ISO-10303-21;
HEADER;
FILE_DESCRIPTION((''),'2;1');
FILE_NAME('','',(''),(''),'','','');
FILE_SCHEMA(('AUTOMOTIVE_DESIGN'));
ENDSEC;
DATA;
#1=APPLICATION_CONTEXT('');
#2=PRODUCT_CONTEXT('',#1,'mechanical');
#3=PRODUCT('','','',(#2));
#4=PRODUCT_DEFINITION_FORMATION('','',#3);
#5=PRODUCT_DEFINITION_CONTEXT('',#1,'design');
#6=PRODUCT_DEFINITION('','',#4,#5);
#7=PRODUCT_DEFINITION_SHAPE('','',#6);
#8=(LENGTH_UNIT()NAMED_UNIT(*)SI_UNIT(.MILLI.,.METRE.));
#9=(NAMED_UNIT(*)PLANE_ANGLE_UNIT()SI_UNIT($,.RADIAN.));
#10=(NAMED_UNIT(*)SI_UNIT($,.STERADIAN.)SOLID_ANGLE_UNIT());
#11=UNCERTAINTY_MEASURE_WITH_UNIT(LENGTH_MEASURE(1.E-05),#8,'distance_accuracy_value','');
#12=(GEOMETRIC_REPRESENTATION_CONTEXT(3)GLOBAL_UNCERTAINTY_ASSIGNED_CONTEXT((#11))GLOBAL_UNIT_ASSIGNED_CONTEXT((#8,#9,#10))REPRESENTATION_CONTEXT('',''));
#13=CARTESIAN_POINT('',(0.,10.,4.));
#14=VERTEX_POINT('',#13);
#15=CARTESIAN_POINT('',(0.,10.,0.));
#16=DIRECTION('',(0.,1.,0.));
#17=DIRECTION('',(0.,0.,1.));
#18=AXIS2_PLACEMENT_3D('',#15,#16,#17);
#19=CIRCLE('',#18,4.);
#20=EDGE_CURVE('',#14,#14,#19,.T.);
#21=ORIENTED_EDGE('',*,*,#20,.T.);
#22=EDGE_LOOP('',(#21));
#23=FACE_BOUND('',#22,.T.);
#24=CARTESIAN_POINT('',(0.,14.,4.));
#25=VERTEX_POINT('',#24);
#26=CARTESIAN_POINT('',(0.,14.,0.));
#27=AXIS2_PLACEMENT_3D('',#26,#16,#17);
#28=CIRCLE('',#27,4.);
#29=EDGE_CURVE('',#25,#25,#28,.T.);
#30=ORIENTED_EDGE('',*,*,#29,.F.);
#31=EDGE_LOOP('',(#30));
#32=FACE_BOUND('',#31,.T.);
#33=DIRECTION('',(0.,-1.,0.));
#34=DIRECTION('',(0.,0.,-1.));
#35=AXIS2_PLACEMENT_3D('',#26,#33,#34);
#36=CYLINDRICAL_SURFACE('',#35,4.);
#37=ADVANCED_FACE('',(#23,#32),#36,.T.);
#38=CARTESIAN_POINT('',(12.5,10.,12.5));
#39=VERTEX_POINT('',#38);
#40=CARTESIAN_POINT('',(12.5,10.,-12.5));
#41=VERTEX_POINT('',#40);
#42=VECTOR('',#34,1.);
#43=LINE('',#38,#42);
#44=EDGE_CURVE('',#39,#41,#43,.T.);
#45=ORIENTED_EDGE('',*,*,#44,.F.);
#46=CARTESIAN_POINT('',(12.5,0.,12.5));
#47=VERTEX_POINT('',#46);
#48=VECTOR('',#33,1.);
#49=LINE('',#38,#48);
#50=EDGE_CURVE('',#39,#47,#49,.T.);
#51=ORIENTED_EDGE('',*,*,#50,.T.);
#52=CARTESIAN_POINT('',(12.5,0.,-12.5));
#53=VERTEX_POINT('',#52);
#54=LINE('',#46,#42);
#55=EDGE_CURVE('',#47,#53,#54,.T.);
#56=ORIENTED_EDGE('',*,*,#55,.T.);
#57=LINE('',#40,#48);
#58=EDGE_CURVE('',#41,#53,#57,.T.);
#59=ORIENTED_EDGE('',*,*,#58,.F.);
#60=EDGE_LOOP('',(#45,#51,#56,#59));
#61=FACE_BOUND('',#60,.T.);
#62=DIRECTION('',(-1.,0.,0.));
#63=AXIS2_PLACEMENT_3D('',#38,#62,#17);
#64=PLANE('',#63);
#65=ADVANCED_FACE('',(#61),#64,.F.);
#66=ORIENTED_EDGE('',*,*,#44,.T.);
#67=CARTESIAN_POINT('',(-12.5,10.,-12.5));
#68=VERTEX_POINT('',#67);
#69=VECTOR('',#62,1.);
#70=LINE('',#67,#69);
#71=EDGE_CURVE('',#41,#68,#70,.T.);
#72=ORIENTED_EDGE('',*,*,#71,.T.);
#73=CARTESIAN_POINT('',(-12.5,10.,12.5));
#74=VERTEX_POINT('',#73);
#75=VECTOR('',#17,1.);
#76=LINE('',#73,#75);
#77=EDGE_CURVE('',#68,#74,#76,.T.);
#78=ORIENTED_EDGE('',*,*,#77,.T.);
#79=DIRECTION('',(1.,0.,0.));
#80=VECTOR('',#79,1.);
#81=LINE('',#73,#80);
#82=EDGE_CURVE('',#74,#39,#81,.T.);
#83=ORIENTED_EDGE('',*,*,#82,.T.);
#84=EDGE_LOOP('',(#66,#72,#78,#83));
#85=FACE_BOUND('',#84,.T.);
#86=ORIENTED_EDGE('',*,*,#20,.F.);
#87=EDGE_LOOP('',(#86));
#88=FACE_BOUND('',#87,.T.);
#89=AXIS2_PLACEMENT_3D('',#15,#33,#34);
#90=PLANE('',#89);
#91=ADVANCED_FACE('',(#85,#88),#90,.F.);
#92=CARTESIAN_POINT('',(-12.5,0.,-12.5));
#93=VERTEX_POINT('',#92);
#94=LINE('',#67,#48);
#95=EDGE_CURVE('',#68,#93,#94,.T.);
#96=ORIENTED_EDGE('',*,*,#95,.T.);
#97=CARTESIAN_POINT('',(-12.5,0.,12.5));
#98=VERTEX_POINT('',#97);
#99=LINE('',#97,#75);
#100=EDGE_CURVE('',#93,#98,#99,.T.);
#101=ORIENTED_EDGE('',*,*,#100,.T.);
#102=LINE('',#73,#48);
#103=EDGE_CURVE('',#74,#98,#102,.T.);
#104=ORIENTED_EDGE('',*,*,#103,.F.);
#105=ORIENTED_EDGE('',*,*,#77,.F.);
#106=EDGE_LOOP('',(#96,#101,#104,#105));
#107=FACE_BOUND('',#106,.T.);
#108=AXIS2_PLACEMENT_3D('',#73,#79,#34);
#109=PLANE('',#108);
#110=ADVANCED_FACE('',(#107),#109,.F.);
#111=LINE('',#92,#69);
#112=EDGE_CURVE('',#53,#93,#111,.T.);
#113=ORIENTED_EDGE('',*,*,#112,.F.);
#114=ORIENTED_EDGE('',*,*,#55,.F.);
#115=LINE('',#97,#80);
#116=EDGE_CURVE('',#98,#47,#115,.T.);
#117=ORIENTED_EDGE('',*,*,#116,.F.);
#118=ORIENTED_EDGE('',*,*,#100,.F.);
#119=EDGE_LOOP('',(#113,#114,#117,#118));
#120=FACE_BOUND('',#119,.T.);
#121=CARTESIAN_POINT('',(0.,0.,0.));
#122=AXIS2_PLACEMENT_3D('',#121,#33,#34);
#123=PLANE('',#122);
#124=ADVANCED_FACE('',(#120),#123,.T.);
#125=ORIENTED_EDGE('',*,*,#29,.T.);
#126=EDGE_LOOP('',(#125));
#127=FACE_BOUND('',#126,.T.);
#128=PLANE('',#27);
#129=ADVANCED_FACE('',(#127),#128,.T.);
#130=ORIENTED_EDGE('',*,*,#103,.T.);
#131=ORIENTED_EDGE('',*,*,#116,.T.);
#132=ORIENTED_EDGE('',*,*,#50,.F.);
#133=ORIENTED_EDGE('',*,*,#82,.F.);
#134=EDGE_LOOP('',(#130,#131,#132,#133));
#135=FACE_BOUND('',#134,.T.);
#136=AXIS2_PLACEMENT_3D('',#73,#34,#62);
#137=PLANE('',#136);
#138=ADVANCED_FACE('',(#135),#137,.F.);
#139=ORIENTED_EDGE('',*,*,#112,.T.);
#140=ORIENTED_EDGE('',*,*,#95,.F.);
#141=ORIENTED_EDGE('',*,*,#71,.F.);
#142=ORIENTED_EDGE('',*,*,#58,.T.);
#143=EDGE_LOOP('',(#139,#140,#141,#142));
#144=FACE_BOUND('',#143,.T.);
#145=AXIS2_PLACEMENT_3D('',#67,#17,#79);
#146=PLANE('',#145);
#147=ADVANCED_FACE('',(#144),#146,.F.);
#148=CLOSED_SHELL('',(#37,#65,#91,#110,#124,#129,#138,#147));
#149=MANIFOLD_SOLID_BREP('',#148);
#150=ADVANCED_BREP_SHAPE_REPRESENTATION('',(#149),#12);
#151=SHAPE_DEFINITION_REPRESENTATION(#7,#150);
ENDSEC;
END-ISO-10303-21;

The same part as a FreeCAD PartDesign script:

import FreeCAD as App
import Part
import Sketcher
from FreeCAD import Vector


def add_polygon(sketch, points):
    """Adds a closed chain of lines whose ends are joined by coincident constraints."""
    first, n = sketch.GeometryCount, len(points)
    for a, b in zip(points, points[1:] + points[:1]):
        sketch.addGeometry(Part.LineSegment(App.Vector(*a, 0), App.Vector(*b, 0)), False)
    for i in range(n):
        sketch.addConstraint(Sketcher.Constraint("Coincident", first + i, 2, first + (i + 1) % n, 1))

doc = App.newDocument("Part")
body = doc.addObject("PartDesign::Body", "Body")

# Sketch on XZ plane
sketch1 = body.newObject("Sketcher::SketchObject", "Sketch")
sketch1.AttachmentSupport = (doc.getObject("XZ_Plane"), [""])
sketch1.MapMode = "FlatFace"
add_polygon(sketch1, [(-12.5, -12.5), (-12.5, 12.5), (12.5, 12.5), (12.5, -12.5)])  # lines 0-3
sketch1.addConstraint([
    Sketcher.Constraint("Vertical", 0),
    Sketcher.Constraint("Horizontal", 1),
    Sketcher.Constraint("Vertical", 2),
    Sketcher.Constraint("Horizontal", 3),
    Sketcher.Constraint("Symmetric", 0, 2, 2, 2, -1, 1),
    Sketcher.Constraint("Equal", 3, 0),
    Sketcher.Constraint("DistanceX", 1, 1, 1, 2, 25.0),
])
pad1 = body.newObject("PartDesign::Pad", "Pad")
pad1.Profile = sketch1
pad1.Length = 10
pad1.Reversed = True

# Sketch on XZ plane
sketch2 = body.newObject("Sketcher::SketchObject", "Sketch001")
sketch2.AttachmentSupport = (doc.getObject("XZ_Plane"), [""])
sketch2.MapMode = "FlatFace"
sketch2.AttachmentOffset = App.Placement(Vector(0, 0, -10), App.Rotation())
sketch2.addGeometry(Part.Circle(Vector(0, 0, 0), Vector(0, 0, 1), 4), False)
sketch2.addConstraint([
    Sketcher.Constraint("Coincident", 0, 3, -1, 1),
    Sketcher.Constraint("Diameter", 0, 8.0),
])
pad2 = body.newObject("PartDesign::Pad", "Pad001")
pad2.Profile = sketch2
pad2.Length = 4
pad2.Reversed = True

doc.recompute()
